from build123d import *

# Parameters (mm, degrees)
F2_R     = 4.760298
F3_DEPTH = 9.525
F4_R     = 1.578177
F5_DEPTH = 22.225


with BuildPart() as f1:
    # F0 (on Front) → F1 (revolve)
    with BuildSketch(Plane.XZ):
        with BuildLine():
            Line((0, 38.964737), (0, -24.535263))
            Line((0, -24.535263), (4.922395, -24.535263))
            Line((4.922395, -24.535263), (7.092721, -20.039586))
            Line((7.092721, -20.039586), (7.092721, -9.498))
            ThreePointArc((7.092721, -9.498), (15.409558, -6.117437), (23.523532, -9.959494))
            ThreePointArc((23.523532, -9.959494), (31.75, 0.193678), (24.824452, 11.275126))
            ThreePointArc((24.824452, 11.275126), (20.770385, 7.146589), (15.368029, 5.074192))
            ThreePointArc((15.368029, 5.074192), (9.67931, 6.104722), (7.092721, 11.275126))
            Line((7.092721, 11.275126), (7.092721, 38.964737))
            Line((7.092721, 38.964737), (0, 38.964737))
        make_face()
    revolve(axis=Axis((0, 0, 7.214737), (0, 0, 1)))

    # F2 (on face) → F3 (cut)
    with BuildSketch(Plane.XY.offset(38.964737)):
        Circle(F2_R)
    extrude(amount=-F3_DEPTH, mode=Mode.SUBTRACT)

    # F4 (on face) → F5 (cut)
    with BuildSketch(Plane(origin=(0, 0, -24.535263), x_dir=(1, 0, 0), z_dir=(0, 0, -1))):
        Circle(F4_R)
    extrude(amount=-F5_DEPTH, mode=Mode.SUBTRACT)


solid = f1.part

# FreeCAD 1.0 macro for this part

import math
import FreeCAD as App
import Part
import Sketcher
Q = App.Units.Quantity

doc = App.newDocument("Part")
body = doc.addObject("PartDesign::Body", "Body")

# Sketch on XZ plane
sketch1 = body.newObject("Sketcher::SketchObject", "Sketch")
sketch1.AttachmentSupport = (doc.getObject("XZ_Plane"), [""])
sketch1.MapMode = "FlatFace"
sketch1.addGeometry(Part.LineSegment(App.Vector(0, 39, 0), App.Vector(0, -24.5, 0)), False)
sketch1.addGeometry(Part.LineSegment(App.Vector(0, -24.5, 0), App.Vector(4.9, -24.5, 0)), False)
sketch1.addGeometry(Part.LineSegment(App.Vector(4.9, -24.5, 0), App.Vector(7.1, -20, 0)), False)
sketch1.addGeometry(Part.LineSegment(App.Vector(7.1, -20, 0), App.Vector(7.1, -9.5, 0)), False)
sketch1.addGeometry(Part.ArcOfCircle(Part.Circle(App.Vector(15.1, -17.3, 0), App.Vector(0, 0, 1), 11.2), math.radians(41), math.radians(136)), False)
sketch1.addGeometry(Part.ArcOfCircle(Part.Circle(App.Vector(20.5, 0.9, 0), App.Vector(0, 0, 1), 11.2), math.radians(-75), math.radians(68)), False)
sketch1.addGeometry(Part.ArcOfCircle(Part.Circle(App.Vector(13.3, 18.5, 0), App.Vector(0, 0, 1), 13.6), math.radians(-81), math.radians(-32)), False)
sketch1.addGeometry(Part.ArcOfCircle(Part.Circle(App.Vector(13.6, 11.3, 0), App.Vector(0, 0, 1), 6.5), math.radians(180), math.radians(286)), False)
sketch1.addGeometry(Part.LineSegment(App.Vector(7.1, 11.3, 0), App.Vector(7.1, 39, 0)), False)
sketch1.addGeometry(Part.LineSegment(App.Vector(7.1, 39, 0), App.Vector(0, 39, 0)), False)
sketch1.addConstraint(Sketcher.Constraint("Coincident", 0, 2, 1, 1))
sketch1.addConstraint(Sketcher.Constraint("Coincident", 1, 2, 2, 1))
sketch1.addConstraint(Sketcher.Constraint("Coincident", 2, 2, 3, 1))
sketch1.addConstraint(Sketcher.Constraint("Coincident", 3, 2, 4, 2))
sketch1.addConstraint(Sketcher.Constraint("Coincident", 4, 1, 5, 1))
sketch1.addConstraint(Sketcher.Constraint("Coincident", 5, 2, 6, 2))
sketch1.addConstraint(Sketcher.Constraint("Coincident", 6, 1, 7, 2))
sketch1.addConstraint(Sketcher.Constraint("Tangent", 7, 1, 8, 1))
sketch1.addConstraint(Sketcher.Constraint("Coincident", 8, 2, 9, 1))
sketch1.addConstraint(Sketcher.Constraint("Coincident", 9, 2, 0, 1))
sketch1.addConstraint(Sketcher.Constraint("Vertical", 0))
sketch1.addConstraint(Sketcher.Constraint("Horizontal", 1))
sketch1.addConstraint(Sketcher.Constraint("Vertical", 3))
sketch1.addConstraint(Sketcher.Constraint("Vertical", 8))
sketch1.addConstraint(Sketcher.Constraint("Horizontal", 9))
sketch1.addConstraint(Sketcher.Constraint("PointOnObject", 0, 2, -2))
sketch1.addConstraint(Sketcher.Constraint("Horizontal", 7, 3, 5, 2))
sketch1.addConstraint(Sketcher.Constraint("Vertical", 3, 2, 7, 1))
sketch1.addConstraint(Sketcher.Constraint("DistanceY", 0, 2, 0, 1, Q("2.5 in")))
sketch1.addConstraint(Sketcher.Constraint("Radius", 5, 11.248809))
sketch1.addConstraint(Sketcher.Constraint("Radius", 4, 11.154707))
sketch1.addConstraint(Sketcher.Constraint("Radius", 6, 13.616627))
sketch1.addConstraint(Sketcher.Constraint("Radius", 7, 6.460926))
sketch1.addConstraint(Sketcher.Constraint("DistanceX", 6, 1, 5, 2, Q("0.3723001 in")))
sketch1.addConstraint(Sketcher.Constraint("DistanceX", 9, 2, 9, 1, 7.092721))
sketch1.addConstraint(Sketcher.Constraint("DistanceY", 8, 1, 8, 2, 27.689611))
sketch1.addConstraint(Sketcher.Constraint("DistanceY", 3, 2, -1, 1, 9.498))
sketch1.addConstraint(Sketcher.Constraint("DistanceY", 0, 2, 5, 3, 25.4168))
sketch1.addConstraint(Sketcher.Constraint("DistanceX", 1, 1, 1, 2, 4.922395))
sketch1.addConstraint(Sketcher.Constraint("DistanceY", 3, 1, 3, 2, 10.541586))
sketch1.addConstraint(Sketcher.Constraint("DistanceX", -1, 1, 6, 3, 13.303612))
sketch1.addConstraint(Sketcher.Constraint("DistanceY", -1, 1, 6, 1, 5.074192))
sketch1.addConstraint(Sketcher.Constraint("DistanceX", 7, 3, 4, 3, 1.542731))
revolution = body.newObject("PartDesign::Revolution", "Revolution")
revolution.Profile = sketch1
revolution.ReferenceAxis = (sketch1, ["V_Axis"])
revolution.Angle = 360

# Sketch on XY plane
sketch2 = body.newObject("Sketcher::SketchObject", "Sketch001")
sketch2.AttachmentSupport = (doc.getObject("XY_Plane"), [""])
sketch2.MapMode = "FlatFace"
sketch2.AttachmentOffset = App.Placement(App.Vector(0, 0, 38.964737), App.Rotation())
sketch2.addGeometry(Part.Circle(App.Vector(0, 0, 0), App.Vector(0, 0, 1), 4.8), False)
sketch2.addConstraint(Sketcher.Constraint("Coincident", 0, 3, -1, 1))
sketch2.addConstraint(Sketcher.Constraint("Diameter", 0, 9.520596))
pocket1 = body.newObject("PartDesign::Pocket", "Pocket")
pocket1.Profile = sketch2
pocket1.Length = Q("0.375 in")

# Sketch on XY plane
sketch3 = body.newObject("Sketcher::SketchObject", "Sketch002")
sketch3.AttachmentSupport = (doc.getObject("XY_Plane"), [""])
sketch3.MapMode = "FlatFace"
sketch3.AttachmentOffset = App.Placement(App.Vector(0, 0, -24.535263), App.Rotation())
sketch3.addGeometry(Part.Circle(App.Vector(0, 0, 0), App.Vector(0, 0, 1), 1.6), False)
sketch3.addConstraint(Sketcher.Constraint("Coincident", 0, 3, -1, 1))
sketch3.addConstraint(Sketcher.Constraint("Diameter", 0, 3.156354))
pocket2 = body.newObject("PartDesign::Pocket", "Pocket001")
pocket2.Profile = sketch3
pocket2.Length = Q("0.875 in")
pocket2.Reversed = True

doc.recompute()
